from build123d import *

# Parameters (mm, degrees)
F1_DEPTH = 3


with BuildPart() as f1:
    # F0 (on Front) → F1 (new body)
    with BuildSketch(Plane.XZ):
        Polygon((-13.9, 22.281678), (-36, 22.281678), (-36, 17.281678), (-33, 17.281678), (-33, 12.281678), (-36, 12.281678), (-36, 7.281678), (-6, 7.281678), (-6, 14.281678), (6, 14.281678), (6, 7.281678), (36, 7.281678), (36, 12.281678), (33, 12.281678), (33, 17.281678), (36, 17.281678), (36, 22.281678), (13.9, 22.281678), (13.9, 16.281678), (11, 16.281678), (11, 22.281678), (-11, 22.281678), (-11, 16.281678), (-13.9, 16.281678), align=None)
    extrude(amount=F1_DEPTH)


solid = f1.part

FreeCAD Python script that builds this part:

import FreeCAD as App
import Part
import Sketcher

V = App.Vector

doc = App.newDocument("Part")
body = doc.addObject("PartDesign::Body", "Body")

sketch1 = body.newObject("Sketcher::SketchObject", "Sketch")
sketch1.AttachmentSupport = (doc.getObject("XZ_Plane"), [""])
sketch1.MapMode = "FlatFace"
sketch1.addGeometry([
    Part.LineSegment(V(-13.9, 22.3, 0), V(-36, 22.3, 0)),
    Part.LineSegment(V(-36, 22.3, 0), V(-36, 17.3, 0)),
    Part.LineSegment(V(-36, 17.3, 0), V(-33, 17.3, 0)),
    Part.LineSegment(V(-33, 17.3, 0), V(-33, 12.3, 0)),
    Part.LineSegment(V(-33, 12.3, 0), V(-36, 12.3, 0)),
    Part.LineSegment(V(-36, 12.3, 0), V(-36, 7.3, 0)),
    Part.LineSegment(V(-36, 7.3, 0), V(-6, 7.3, 0)),
    Part.LineSegment(V(-6, 7.3, 0), V(-6, 14.3, 0)),
    Part.LineSegment(V(-6, 14.3, 0), V(6, 14.3, 0)),
    Part.LineSegment(V(6, 14.3, 0), V(6, 7.3, 0)),
    Part.LineSegment(V(6, 7.3, 0), V(36, 7.3, 0)),
    Part.LineSegment(V(36, 7.3, 0), V(36, 12.3, 0)),
    Part.LineSegment(V(36, 12.3, 0), V(33, 12.3, 0)),
    Part.LineSegment(V(33, 12.3, 0), V(33, 17.3, 0)),
    Part.LineSegment(V(33, 17.3, 0), V(36, 17.3, 0)),
    Part.LineSegment(V(36, 17.3, 0), V(36, 22.3, 0)),
    Part.LineSegment(V(36, 22.3, 0), V(13.9, 22.3, 0)),
    Part.LineSegment(V(13.9, 22.3, 0), V(13.9, 16.3, 0)),
    Part.LineSegment(V(13.9, 16.3, 0), V(11, 16.3, 0)),
    Part.LineSegment(V(11, 16.3, 0), V(11, 22.3, 0)),
    Part.LineSegment(V(11, 22.3, 0), V(-11, 22.3, 0)),
    Part.LineSegment(V(-11, 22.3, 0), V(-11, 16.3, 0)),
    Part.LineSegment(V(-11, 16.3, 0), V(-13.9, 16.3, 0)),
    Part.LineSegment(V(-13.9, 16.3, 0), V(-13.9, 22.3, 0)),
], False)
sketch1.addConstraint([
    Sketcher.Constraint("Coincident", 0, 2, 1, 1),
    Sketcher.Constraint("Coincident", 1, 2, 2, 1),
    Sketcher.Constraint("Coincident", 2, 2, 3, 1),
    Sketcher.Constraint("Coincident", 3, 2, 4, 1),
    Sketcher.Constraint("Coincident", 4, 2, 5, 1),
    Sketcher.Constraint("Coincident", 5, 2, 6, 1),
    Sketcher.Constraint("Coincident", 6, 2, 7, 1),
    Sketcher.Constraint("Coincident", 7, 2, 8, 1),
    Sketcher.Constraint("Coincident", 8, 2, 9, 1),
    Sketcher.Constraint("Coincident", 9, 2, 10, 1),
    Sketcher.Constraint("Coincident", 10, 2, 11, 1),
    Sketcher.Constraint("Coincident", 11, 2, 12, 1),
    Sketcher.Constraint("Coincident", 12, 2, 13, 1),
    Sketcher.Constraint("Coincident", 13, 2, 14, 1),
    Sketcher.Constraint("Coincident", 14, 2, 15, 1),
    Sketcher.Constraint("Coincident", 15, 2, 16, 1),
    Sketcher.Constraint("Coincident", 16, 2, 17, 1),
    Sketcher.Constraint("Coincident", 17, 2, 18, 1),
    Sketcher.Constraint("Coincident", 18, 2, 19, 1),
    Sketcher.Constraint("Coincident", 19, 2, 20, 1),
    Sketcher.Constraint("Coincident", 20, 2, 21, 1),
    Sketcher.Constraint("Coincident", 21, 2, 22, 1),
    Sketcher.Constraint("Coincident", 22, 2, 23, 1),
    Sketcher.Constraint("Coincident", 23, 2, 0, 1),
    Sketcher.Constraint("Horizontal", 0),
    Sketcher.Constraint("Vertical", 1),
    Sketcher.Constraint("Horizontal", 2),
    Sketcher.Constraint("Vertical", 3),
    Sketcher.Constraint("Horizontal", 4),
    Sketcher.Constraint("Vertical", 5),
    Sketcher.Constraint("Horizontal", 6),
    Sketcher.Constraint("Vertical", 7),
    Sketcher.Constraint("Horizontal", 8),
    Sketcher.Constraint("Vertical", 9),
    Sketcher.Constraint("Horizontal", 10),
    Sketcher.Constraint("Vertical", 11),
    Sketcher.Constraint("Horizontal", 12),
    Sketcher.Constraint("Vertical", 13),
    Sketcher.Constraint("Horizontal", 14),
    Sketcher.Constraint("Vertical", 15),
    Sketcher.Constraint("Horizontal", 16),
    Sketcher.Constraint("Vertical", 17),
    Sketcher.Constraint("Horizontal", 18),
    Sketcher.Constraint("Vertical", 19),
    Sketcher.Constraint("Horizontal", 20),
    Sketcher.Constraint("Vertical", 21),
    Sketcher.Constraint("Horizontal", 22),
    Sketcher.Constraint("Vertical", 23),
    Sketcher.Constraint("Symmetric", 6, 2, 9, 2, -2),
    Sketcher.Constraint("Symmetric", 4, 2, 11, 2, -2),
    Sketcher.Constraint("Symmetric", 2, 2, 13, 2, -2),
    Sketcher.Constraint("Symmetric", 0, 2, 15, 2, -2),
    Sketcher.Constraint("Symmetric", 18, 2, 21, 2, -2),
    Sketcher.Constraint("Horizontal", 16, 2, 19, 2),
    Sketcher.Constraint("Vertical", 1, 2, 4, 2),
    Sketcher.Constraint("Equal", 0, 16),
    Sketcher.Constraint("Equal", 1, 3),
    Sketcher.Constraint("Equal", 3, 5),
    Sketcher.Constraint("DistanceX", 2, 1, 2, 2, 3.0),
    Sketcher.Constraint("DistanceX", 6, 1, 6, 2, 30.0),
    Sketcher.Constraint("DistanceX", 8, 1, 8, 2, 12.0),
    Sketcher.Constraint("DistanceX", 20, 2, 20, 1, 22.0),
    Sketcher.Constraint("DistanceY", 1, 2, 1, 1, 5.0),
    Sketcher.Constraint("DistanceY", 7, 1, 7, 2, 7.0),
    Sketcher.Constraint("DistanceY", 17, 2, 17, 1, 6.0),
    Sketcher.Constraint("DistanceX", 0, 2, 0, 1, 22.1),
    Sketcher.Constraint("DistanceY", -1, 1, 5, 2, 7.281678),
])
pad1 = body.newObject("PartDesign::Pad", "Pad")
pad1.Profile = sketch1
pad1.Length = 3

doc.recompute()
